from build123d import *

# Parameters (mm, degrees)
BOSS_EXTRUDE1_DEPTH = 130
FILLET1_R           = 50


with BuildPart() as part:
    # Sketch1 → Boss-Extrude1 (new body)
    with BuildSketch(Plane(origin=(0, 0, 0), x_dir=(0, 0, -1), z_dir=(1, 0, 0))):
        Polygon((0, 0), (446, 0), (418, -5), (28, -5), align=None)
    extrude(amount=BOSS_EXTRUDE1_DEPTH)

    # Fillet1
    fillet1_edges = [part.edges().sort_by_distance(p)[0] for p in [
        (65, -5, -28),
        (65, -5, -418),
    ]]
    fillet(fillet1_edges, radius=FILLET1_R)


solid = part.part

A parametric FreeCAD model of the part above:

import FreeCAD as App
import Part
import Sketcher
Q = App.Units.Quantity


def edges_at(feature, points):
    """Names of the edges that pass closest to the given points."""
    edges = feature.Shape.Edges
    near = lambda p: min(range(len(edges)), key=lambda i: edges[i].distToShape(Part.Vertex(*p))[0])
    return sorted({f"Edge{near(p) + 1}" for p in points})


def add_polygon(sketch, points):
    """Adds a closed chain of lines whose ends are joined by coincident constraints."""
    first, n = sketch.GeometryCount, len(points)
    for a, b in zip(points, points[1:] + points[:1]):
        sketch.addGeometry(Part.LineSegment(App.Vector(*a, 0), App.Vector(*b, 0)), False)
    for i in range(n):
        sketch.addConstraint(Sketcher.Constraint("Coincident", first + i, 2, first + (i + 1) % n, 1))

doc = App.newDocument("Part")
body = doc.addObject("PartDesign::Body", "Body")

# Sketch on YZ plane
sketch1 = body.newObject("Sketcher::SketchObject", "Sketch")
sketch1.AttachmentSupport = (doc.getObject("YZ_Plane"), [""])
sketch1.MapMode = "FlatFace"
add_polygon(sketch1, [(0, -446), (0, 0), (-5, -28), (-5, -418)])  # lines 0-3
sketch1.addConstraint([
    Sketcher.Constraint("Vertical", 0),
    Sketcher.Constraint("Vertical", 2),
    Sketcher.Constraint("Coincident", 0, 2, -1, 1),
    Sketcher.Constraint("Equal", 1, 3),
    Sketcher.Constraint("DistanceY", 0, 1, 0, 2, Q("446 mm")),
    Sketcher.Constraint("DistanceY", 2, 2, 2, 1, Q("390 mm")),
    Sketcher.Constraint("DistanceX", 1, 2, -1, 1, Q("5 mm")),
])
pad1 = body.newObject("PartDesign::Pad", "Pad")
pad1.Profile = sketch1
pad1.Length = 130
doc.recompute()

fillet = body.newObject("PartDesign::Fillet", "Fillet")
fillet.Base = (pad1, edges_at(pad1, [(65, -5, -28), (65, -5, -418)]))
fillet.Radius = 50

doc.recompute()
